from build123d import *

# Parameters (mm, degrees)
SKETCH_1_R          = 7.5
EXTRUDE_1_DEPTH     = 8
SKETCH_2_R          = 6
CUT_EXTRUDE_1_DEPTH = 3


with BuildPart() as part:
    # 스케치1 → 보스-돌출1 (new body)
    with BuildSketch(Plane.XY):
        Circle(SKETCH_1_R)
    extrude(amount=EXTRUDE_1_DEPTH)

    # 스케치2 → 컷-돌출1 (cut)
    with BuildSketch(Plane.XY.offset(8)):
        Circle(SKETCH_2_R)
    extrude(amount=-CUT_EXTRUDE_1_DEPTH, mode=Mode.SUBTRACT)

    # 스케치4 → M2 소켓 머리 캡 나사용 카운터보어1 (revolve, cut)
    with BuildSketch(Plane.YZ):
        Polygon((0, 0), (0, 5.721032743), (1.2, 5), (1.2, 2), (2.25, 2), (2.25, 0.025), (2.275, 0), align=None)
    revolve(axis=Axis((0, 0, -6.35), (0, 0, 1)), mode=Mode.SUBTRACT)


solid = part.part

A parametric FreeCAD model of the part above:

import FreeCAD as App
import Part
import Sketcher

V = App.Vector
Q = App.Units.Quantity

doc = App.newDocument("Part")
body = doc.addObject("PartDesign::Body", "Body")

sketch1 = body.newObject("Sketcher::SketchObject", "Sketch")
sketch1.AttachmentSupport = (doc.getObject("XY_Plane"), [""])
sketch1.MapMode = "FlatFace"
sketch1.addGeometry(Part.Circle(V(0, 0, 0), V(0, 0, 1), 8), False)
sketch1.addConstraint([
    Sketcher.Constraint("Coincident", 0, 3, -1, 1),
    Sketcher.Constraint("Diameter", 0, Q("15 mm")),
])
pad1 = body.newObject("PartDesign::Pad", "Pad")
pad1.Profile = sketch1
pad1.Length = 8

sketch2 = body.newObject("Sketcher::SketchObject", "Sketch001")
sketch2.AttachmentSupport = (doc.getObject("XY_Plane"), [""])
sketch2.MapMode = "FlatFace"
sketch2.AttachmentOffset = App.Placement(V(0, 0, 8), App.Rotation())
sketch2.addGeometry(Part.Circle(V(0, 0, 0), V(0, 0, 1), 6), False)
sketch2.addConstraint([
    Sketcher.Constraint("Coincident", 0, 3, -1, 1),
    Sketcher.Constraint("Diameter", 0, Q("12 mm")),
])
pocket1 = body.newObject("PartDesign::Pocket", "Pocket")
pocket1.Profile = sketch2
pocket1.Length = 3

sketch3 = body.newObject("Sketcher::SketchObject", "Sketch002")
sketch3.AttachmentSupport = (doc.getObject("YZ_Plane"), [""])
sketch3.MapMode = "FlatFace"
sketch3.addGeometry([
    Part.LineSegment(V(0, 5.721, 0), V(0, 0, 0)),
    Part.LineSegment(V(0, 0, 0), V(2.275, 0, 0)),
    Part.LineSegment(V(2.275, 0, 0), V(2.25, 0.025, 0)),
    Part.LineSegment(V(2.25, 0.025, 0), V(2.25, 2, 0)),
    Part.LineSegment(V(2.25, 2, 0), V(1.2, 2, 0)),
    Part.LineSegment(V(1.2, 2, 0), V(1.2, 5, 0)),
    Part.LineSegment(V(1.2, 5, 0), V(0, 5.721, 0)),
], False)
sketch3.addConstraint([
    Sketcher.Constraint("Coincident", 0, 2, 1, 1),
    Sketcher.Constraint("Coincident", 1, 2, 2, 1),
    Sketcher.Constraint("Coincident", 2, 2, 3, 1),
    Sketcher.Constraint("Coincident", 3, 2, 4, 1),
    Sketcher.Constraint("Coincident", 4, 2, 5, 1),
    Sketcher.Constraint("Coincident", 5, 2, 6, 1),
    Sketcher.Constraint("Coincident", 6, 2, 0, 1),
    Sketcher.Constraint("Vertical", 0),
    Sketcher.Constraint("Horizontal", 1),
    Sketcher.Constraint("Vertical", 3),
    Sketcher.Constraint("Horizontal", 4),
    Sketcher.Constraint("Vertical", 5),
    Sketcher.Constraint("Coincident", 0, 2, -1, 1),
    Sketcher.Constraint("DistanceY", 5, 1, 5, 2, Q("3 mm")),
    Sketcher.Constraint("Angle", 2, Q("135 deg")),
    Sketcher.Constraint("Angle", 6, Q("149 deg")),
    Sketcher.Constraint("DistanceY", -1, 1, 3, 2, Q("2 mm")),
    Sketcher.Constraint("DistanceX", 4, 2, 4, 1, Q("1.05 mm")),
    Sketcher.Constraint("DistanceX", -1, 1, 4, 2, Q("1.2 mm")),
    Sketcher.Constraint("DistanceX", 1, 1, 1, 2, Q("2.275 mm")),
])
groove = body.newObject("PartDesign::Groove", "Groove")
groove.Profile = sketch3
groove.ReferenceAxis = (sketch3, ["V_Axis"])
groove.Angle = 360

doc.recompute()
